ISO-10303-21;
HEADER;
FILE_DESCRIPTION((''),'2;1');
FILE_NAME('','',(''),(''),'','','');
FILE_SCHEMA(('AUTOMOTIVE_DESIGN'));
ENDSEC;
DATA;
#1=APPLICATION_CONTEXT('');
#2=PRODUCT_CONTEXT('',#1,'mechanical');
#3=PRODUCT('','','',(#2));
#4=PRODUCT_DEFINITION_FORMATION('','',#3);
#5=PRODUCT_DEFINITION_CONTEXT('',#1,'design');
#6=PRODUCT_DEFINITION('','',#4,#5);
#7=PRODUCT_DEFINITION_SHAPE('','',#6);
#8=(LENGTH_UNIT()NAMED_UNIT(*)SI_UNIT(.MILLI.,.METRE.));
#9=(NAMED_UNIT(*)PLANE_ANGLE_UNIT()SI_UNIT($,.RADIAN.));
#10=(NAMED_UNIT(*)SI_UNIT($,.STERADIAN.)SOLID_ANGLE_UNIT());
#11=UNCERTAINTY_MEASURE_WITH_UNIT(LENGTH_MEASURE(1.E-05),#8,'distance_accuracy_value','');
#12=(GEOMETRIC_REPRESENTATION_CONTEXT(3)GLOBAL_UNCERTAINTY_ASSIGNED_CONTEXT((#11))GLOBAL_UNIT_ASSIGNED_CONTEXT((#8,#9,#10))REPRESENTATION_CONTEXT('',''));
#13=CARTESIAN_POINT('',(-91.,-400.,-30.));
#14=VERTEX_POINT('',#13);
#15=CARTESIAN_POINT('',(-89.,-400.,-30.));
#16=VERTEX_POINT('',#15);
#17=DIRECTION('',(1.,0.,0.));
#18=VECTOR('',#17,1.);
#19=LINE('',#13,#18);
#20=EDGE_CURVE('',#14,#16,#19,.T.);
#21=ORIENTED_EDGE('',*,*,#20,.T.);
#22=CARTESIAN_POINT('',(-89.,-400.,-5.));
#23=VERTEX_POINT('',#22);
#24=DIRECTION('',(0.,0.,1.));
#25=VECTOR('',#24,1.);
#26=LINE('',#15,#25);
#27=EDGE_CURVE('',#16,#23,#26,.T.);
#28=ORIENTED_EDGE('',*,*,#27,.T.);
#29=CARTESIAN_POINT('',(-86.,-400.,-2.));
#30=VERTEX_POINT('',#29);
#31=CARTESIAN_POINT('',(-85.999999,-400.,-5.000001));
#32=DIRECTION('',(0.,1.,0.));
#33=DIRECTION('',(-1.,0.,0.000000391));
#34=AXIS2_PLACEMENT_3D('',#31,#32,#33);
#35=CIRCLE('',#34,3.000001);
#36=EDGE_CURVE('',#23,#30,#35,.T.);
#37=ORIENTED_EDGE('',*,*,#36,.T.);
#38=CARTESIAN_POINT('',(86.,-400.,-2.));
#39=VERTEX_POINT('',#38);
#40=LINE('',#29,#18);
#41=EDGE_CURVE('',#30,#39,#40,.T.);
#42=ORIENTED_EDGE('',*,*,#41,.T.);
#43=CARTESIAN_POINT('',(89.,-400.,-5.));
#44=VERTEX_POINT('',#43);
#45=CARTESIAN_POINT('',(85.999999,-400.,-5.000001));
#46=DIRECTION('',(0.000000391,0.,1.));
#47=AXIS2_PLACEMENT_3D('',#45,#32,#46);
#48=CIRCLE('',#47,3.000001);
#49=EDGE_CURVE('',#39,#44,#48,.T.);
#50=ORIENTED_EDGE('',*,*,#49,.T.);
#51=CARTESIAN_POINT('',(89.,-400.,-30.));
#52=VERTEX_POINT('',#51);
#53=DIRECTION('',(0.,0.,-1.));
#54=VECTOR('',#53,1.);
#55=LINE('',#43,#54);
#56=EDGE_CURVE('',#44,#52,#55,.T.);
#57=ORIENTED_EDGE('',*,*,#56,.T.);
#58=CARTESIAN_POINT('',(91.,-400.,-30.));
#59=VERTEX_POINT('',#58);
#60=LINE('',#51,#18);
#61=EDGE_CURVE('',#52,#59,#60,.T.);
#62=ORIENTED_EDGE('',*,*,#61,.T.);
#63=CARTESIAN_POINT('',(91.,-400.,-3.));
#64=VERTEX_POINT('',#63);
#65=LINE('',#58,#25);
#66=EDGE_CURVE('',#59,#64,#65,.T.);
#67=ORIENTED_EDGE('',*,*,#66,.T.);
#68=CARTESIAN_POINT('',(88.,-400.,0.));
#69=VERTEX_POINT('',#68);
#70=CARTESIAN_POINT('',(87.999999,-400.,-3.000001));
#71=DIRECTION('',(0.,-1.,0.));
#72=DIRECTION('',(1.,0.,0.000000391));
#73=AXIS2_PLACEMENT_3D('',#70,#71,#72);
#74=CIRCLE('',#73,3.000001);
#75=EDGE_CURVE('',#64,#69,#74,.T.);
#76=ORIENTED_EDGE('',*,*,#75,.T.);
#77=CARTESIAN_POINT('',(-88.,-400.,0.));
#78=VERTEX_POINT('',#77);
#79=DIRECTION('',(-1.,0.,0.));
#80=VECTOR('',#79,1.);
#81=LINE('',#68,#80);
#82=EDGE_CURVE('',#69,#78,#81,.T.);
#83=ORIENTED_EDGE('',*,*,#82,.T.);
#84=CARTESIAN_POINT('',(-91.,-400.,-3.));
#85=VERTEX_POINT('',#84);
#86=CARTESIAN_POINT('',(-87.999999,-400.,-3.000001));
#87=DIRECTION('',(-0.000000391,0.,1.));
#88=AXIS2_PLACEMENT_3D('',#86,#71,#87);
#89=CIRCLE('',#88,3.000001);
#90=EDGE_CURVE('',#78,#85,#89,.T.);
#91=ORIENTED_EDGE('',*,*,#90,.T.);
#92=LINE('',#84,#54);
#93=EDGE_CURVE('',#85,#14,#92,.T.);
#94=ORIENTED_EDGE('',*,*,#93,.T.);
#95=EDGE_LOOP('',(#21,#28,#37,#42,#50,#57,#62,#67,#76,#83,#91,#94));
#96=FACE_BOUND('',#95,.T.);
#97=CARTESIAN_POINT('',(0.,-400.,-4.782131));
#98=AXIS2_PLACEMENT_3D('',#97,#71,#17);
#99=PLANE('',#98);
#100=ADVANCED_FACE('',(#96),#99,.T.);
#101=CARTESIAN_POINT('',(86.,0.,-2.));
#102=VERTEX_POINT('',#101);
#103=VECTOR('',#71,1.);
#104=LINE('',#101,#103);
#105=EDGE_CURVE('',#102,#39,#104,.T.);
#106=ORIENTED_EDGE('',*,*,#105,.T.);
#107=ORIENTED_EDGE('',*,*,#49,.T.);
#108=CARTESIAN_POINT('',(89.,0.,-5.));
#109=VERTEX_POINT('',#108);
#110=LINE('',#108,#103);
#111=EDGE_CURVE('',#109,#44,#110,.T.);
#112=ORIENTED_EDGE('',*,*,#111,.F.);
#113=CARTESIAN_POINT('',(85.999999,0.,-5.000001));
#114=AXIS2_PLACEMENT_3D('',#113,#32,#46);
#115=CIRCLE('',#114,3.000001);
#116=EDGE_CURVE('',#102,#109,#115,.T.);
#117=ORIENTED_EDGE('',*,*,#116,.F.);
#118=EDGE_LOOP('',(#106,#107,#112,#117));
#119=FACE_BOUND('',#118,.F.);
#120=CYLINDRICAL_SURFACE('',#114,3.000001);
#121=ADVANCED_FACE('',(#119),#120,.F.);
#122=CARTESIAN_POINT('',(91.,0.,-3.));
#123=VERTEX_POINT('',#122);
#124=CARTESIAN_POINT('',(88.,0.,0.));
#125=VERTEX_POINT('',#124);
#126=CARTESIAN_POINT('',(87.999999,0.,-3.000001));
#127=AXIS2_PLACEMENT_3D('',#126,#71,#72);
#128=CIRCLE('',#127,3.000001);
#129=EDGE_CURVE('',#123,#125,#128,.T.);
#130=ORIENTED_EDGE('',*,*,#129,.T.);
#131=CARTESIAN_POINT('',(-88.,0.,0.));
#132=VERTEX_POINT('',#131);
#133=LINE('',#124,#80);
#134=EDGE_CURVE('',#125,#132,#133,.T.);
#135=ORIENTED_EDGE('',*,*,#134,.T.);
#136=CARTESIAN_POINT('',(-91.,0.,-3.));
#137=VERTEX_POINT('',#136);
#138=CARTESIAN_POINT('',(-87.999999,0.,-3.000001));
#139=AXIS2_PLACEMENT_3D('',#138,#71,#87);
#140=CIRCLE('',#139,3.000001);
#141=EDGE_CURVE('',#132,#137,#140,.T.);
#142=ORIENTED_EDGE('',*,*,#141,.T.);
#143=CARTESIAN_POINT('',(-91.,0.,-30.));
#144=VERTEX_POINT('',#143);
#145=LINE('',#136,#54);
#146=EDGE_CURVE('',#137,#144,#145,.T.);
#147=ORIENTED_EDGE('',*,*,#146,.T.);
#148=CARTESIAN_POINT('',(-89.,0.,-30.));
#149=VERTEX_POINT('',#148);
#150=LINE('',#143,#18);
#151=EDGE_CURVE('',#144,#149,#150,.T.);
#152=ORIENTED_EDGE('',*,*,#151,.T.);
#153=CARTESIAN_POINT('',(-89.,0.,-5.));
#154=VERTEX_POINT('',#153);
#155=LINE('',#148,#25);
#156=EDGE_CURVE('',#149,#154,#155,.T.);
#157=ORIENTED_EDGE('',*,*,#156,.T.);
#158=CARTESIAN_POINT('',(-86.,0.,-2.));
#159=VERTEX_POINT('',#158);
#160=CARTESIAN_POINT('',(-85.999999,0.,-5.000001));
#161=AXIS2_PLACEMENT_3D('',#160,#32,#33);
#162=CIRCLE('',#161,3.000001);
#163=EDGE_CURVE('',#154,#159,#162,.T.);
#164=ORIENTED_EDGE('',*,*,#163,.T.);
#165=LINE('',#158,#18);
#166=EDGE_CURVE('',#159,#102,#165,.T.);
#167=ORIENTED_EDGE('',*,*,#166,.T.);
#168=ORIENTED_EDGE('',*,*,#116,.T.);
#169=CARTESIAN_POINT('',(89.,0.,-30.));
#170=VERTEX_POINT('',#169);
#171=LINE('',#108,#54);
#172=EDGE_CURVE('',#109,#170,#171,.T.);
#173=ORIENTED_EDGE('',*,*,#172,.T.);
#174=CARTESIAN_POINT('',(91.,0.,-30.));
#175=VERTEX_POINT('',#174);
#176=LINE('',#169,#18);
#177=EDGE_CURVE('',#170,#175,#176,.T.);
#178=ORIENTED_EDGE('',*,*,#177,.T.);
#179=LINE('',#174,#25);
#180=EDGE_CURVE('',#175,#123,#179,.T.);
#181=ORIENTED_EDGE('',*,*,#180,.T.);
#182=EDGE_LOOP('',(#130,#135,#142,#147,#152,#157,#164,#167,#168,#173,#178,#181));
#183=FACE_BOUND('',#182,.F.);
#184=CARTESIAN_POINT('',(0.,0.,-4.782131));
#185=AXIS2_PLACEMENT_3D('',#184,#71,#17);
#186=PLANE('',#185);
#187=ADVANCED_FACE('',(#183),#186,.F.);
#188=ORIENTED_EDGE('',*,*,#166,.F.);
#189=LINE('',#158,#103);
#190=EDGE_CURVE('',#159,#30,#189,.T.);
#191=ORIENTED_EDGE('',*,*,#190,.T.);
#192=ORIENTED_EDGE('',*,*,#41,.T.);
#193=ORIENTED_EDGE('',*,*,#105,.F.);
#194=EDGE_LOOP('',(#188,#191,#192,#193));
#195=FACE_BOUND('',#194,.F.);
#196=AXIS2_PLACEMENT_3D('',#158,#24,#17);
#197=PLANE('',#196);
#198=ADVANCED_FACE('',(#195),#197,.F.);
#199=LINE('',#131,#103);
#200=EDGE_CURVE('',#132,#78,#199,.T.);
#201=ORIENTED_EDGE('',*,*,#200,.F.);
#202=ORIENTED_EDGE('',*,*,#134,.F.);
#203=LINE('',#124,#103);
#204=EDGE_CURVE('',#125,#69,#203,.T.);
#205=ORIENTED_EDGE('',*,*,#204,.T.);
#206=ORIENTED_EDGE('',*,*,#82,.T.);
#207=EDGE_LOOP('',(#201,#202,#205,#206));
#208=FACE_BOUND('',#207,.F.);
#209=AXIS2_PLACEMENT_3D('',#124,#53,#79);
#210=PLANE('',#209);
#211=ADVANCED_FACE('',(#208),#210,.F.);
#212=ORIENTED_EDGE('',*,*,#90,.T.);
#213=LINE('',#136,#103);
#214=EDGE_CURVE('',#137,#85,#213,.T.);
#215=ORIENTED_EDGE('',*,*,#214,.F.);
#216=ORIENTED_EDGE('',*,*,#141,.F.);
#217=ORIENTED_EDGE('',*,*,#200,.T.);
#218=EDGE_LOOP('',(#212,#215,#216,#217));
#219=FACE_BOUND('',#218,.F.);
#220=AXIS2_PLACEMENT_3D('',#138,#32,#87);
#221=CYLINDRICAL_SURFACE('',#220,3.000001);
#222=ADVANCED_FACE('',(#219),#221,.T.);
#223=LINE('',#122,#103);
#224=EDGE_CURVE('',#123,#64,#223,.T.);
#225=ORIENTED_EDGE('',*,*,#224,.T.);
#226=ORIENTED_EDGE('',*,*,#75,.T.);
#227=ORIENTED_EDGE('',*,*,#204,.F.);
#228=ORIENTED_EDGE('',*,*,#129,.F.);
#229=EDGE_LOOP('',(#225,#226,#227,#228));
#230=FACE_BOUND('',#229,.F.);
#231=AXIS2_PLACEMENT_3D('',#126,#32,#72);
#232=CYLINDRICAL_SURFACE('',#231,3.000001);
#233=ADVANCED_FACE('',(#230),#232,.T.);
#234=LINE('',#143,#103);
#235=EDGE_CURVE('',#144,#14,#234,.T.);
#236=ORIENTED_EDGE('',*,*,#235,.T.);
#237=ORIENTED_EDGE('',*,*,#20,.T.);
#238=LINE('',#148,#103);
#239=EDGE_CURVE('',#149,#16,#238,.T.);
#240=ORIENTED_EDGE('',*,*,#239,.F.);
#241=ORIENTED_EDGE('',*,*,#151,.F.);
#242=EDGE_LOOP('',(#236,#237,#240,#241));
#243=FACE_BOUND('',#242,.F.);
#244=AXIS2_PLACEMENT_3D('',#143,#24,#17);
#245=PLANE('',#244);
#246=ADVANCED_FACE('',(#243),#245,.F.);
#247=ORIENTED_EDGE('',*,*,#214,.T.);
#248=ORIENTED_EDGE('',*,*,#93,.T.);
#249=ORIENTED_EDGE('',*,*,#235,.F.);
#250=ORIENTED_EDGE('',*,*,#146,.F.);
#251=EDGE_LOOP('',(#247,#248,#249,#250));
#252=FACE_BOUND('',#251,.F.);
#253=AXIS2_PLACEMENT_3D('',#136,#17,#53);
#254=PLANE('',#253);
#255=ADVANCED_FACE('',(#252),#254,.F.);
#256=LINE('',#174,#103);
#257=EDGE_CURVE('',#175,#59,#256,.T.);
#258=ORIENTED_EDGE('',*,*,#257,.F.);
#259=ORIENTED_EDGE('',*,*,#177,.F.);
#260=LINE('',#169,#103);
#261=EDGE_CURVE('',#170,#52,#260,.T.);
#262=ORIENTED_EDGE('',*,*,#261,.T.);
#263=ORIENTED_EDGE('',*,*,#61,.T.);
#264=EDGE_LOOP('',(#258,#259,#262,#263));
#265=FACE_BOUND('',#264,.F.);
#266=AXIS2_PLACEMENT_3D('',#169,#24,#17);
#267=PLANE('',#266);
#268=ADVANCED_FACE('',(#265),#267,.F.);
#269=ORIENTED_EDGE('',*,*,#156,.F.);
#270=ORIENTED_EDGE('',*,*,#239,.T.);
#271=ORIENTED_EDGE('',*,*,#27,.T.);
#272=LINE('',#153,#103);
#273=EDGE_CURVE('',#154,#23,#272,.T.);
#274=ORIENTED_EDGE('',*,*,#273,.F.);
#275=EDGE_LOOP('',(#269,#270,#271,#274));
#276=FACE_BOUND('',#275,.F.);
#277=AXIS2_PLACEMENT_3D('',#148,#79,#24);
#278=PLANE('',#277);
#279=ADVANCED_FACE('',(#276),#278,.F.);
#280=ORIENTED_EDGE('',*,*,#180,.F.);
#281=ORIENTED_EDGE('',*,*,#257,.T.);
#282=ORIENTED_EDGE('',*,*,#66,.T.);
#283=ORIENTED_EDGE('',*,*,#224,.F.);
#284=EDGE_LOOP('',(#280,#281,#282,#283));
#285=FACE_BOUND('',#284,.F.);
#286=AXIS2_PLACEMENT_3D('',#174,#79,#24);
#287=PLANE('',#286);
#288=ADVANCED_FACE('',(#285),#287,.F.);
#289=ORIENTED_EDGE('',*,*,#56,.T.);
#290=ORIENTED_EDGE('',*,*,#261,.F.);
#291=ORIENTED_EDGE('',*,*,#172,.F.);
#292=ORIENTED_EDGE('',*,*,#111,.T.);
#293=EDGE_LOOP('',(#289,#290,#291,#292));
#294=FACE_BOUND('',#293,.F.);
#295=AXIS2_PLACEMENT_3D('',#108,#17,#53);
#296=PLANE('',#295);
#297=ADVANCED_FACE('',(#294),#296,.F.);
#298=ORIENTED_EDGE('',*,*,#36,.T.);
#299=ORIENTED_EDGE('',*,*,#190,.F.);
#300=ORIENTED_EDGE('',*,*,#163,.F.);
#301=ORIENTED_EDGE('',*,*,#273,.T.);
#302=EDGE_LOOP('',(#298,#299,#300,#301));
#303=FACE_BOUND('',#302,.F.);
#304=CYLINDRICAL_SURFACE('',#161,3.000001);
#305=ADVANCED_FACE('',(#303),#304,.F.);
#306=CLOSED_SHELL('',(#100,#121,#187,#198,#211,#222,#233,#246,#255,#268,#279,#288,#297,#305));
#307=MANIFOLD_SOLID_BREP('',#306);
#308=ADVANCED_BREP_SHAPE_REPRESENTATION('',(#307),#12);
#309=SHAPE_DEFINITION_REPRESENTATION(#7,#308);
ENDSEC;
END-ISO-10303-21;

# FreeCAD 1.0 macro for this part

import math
import FreeCAD as App
import Part
import Sketcher
Q = App.Units.Quantity

doc = App.newDocument("Part")
params = doc.addObject("Spreadsheet::Sheet", "Params")
for row, (alias, value) in enumerate([
    ("sketch1_radius", "3.000001 mm"),
    ("sketch1_width", "176 mm"),
    ("sketch1_width2", "2 mm"),
    ("sketch1_height", "27 mm"),
    ("sketch1_height2", "25 mm"),
    ("pad1_length", "400 mm"),
], start=1):
    params.set(f"A{row}", alias)
    params.set(f"B{row}", "=" + value)
    params.setAlias(f"B{row}", alias)

body = doc.addObject("PartDesign::Body", "Body")

sketch1 = body.newObject("Sketcher::SketchObject", "Sketch")
sketch1.AttachmentSupport = (doc.getObject("XZ_Plane"), [""])
sketch1.MapMode = "FlatFace"
sketch1.addGeometry([
    Part.LineSegment(App.Vector(88, 0, 0), App.Vector(-88, 0, 0)),
    Part.ArcOfCircle(Part.Circle(App.Vector(-87.999999, -3.000001, 0), App.Vector(0, 0, 1), 3.000001), math.radians(90.000022), math.radians(179.999978)),
    Part.LineSegment(App.Vector(-91, -3, 0), App.Vector(-91, -30, 0)),
    Part.LineSegment(App.Vector(-91, -30, 0), App.Vector(-89, -30, 0)),
    Part.LineSegment(App.Vector(-89, -30, 0), App.Vector(-89, -5, 0)),
    Part.ArcOfCircle(Part.Circle(App.Vector(-85.999999, -5.000001, 0), App.Vector(0, 0, 1), 3.000001), math.radians(90.000022), math.radians(179.999978)),
    Part.LineSegment(App.Vector(-86, -2, 0), App.Vector(86, -2, 0)),
    Part.ArcOfCircle(Part.Circle(App.Vector(85.999999, -5.000001, 0), App.Vector(0, 0, 1), 3.000001), math.radians(0.000022), math.radians(89.999978)),
    Part.LineSegment(App.Vector(89, -5, 0), App.Vector(89, -30, 0)),
    Part.LineSegment(App.Vector(89, -30, 0), App.Vector(91, -30, 0)),
    Part.LineSegment(App.Vector(91, -30, 0), App.Vector(91, -3, 0)),
    Part.ArcOfCircle(Part.Circle(App.Vector(87.999999, -3.000001, 0), App.Vector(0, 0, 1), 3.000001), math.radians(0.000022), math.radians(89.999978)),
], False)
sketch1.addConstraint([
    Sketcher.Constraint("Tangent", 0, 2, 1, 1),
    Sketcher.Constraint("Tangent", 1, 2, 2, 1),
    Sketcher.Constraint("Coincident", 2, 2, 3, 1),
    Sketcher.Constraint("Coincident", 3, 2, 4, 1),
    Sketcher.Constraint("Tangent", 4, 2, 5, 2),
    Sketcher.Constraint("Tangent", 5, 1, 6, 1),
    Sketcher.Constraint("Tangent", 6, 2, 7, 2),
    Sketcher.Constraint("Tangent", 7, 1, 8, 1),
    Sketcher.Constraint("Coincident", 8, 2, 9, 1),
    Sketcher.Constraint("Coincident", 9, 2, 10, 1),
    Sketcher.Constraint("Tangent", 10, 2, 11, 1),
    Sketcher.Constraint("Tangent", 11, 2, 0, 1),
    Sketcher.Constraint("Horizontal", 0),
    Sketcher.Constraint("Vertical", 2),
    Sketcher.Constraint("Horizontal", 3),
    Sketcher.Constraint("Vertical", 4),
    Sketcher.Constraint("Horizontal", 6),
    Sketcher.Constraint("Vertical", 8),
    Sketcher.Constraint("Horizontal", 9),
    Sketcher.Constraint("Vertical", 10),
    Sketcher.Constraint("Equal", 1, 5),
    Sketcher.Constraint("Equal", 5, 7),
    Sketcher.Constraint("Equal", 7, 11),
    Sketcher.Constraint("Symmetric", 0, 2, 11, 2, -1, 1),
    Sketcher.Constraint("Symmetric", 3, 2, 8, 2, -2),
    Sketcher.Constraint("Radius", 1, Q("3.000001 mm")),
    Sketcher.Constraint("DistanceX", 0, 2, 0, 1, Q("176 mm")),
    Sketcher.Constraint("DistanceX", 3, 1, 3, 2, Q("2 mm")),
    Sketcher.Constraint("DistanceY", 2, 2, 2, 1, Q("27 mm")),
    Sketcher.Constraint("DistanceY", 4, 1, 4, 2, Q("25 mm")),
])
sketch1.setExpression("Constraints[25]", "Params.sketch1_radius")
sketch1.setExpression("Constraints[26]", "Params.sketch1_width")
sketch1.setExpression("Constraints[27]", "Params.sketch1_width2")
sketch1.setExpression("Constraints[28]", "Params.sketch1_height")
sketch1.setExpression("Constraints[29]", "Params.sketch1_height2")
pad1 = body.newObject("PartDesign::Pad", "Pad")
pad1.Profile = sketch1
pad1.setExpression("Length", "Params.pad1_length")

doc.recompute()
